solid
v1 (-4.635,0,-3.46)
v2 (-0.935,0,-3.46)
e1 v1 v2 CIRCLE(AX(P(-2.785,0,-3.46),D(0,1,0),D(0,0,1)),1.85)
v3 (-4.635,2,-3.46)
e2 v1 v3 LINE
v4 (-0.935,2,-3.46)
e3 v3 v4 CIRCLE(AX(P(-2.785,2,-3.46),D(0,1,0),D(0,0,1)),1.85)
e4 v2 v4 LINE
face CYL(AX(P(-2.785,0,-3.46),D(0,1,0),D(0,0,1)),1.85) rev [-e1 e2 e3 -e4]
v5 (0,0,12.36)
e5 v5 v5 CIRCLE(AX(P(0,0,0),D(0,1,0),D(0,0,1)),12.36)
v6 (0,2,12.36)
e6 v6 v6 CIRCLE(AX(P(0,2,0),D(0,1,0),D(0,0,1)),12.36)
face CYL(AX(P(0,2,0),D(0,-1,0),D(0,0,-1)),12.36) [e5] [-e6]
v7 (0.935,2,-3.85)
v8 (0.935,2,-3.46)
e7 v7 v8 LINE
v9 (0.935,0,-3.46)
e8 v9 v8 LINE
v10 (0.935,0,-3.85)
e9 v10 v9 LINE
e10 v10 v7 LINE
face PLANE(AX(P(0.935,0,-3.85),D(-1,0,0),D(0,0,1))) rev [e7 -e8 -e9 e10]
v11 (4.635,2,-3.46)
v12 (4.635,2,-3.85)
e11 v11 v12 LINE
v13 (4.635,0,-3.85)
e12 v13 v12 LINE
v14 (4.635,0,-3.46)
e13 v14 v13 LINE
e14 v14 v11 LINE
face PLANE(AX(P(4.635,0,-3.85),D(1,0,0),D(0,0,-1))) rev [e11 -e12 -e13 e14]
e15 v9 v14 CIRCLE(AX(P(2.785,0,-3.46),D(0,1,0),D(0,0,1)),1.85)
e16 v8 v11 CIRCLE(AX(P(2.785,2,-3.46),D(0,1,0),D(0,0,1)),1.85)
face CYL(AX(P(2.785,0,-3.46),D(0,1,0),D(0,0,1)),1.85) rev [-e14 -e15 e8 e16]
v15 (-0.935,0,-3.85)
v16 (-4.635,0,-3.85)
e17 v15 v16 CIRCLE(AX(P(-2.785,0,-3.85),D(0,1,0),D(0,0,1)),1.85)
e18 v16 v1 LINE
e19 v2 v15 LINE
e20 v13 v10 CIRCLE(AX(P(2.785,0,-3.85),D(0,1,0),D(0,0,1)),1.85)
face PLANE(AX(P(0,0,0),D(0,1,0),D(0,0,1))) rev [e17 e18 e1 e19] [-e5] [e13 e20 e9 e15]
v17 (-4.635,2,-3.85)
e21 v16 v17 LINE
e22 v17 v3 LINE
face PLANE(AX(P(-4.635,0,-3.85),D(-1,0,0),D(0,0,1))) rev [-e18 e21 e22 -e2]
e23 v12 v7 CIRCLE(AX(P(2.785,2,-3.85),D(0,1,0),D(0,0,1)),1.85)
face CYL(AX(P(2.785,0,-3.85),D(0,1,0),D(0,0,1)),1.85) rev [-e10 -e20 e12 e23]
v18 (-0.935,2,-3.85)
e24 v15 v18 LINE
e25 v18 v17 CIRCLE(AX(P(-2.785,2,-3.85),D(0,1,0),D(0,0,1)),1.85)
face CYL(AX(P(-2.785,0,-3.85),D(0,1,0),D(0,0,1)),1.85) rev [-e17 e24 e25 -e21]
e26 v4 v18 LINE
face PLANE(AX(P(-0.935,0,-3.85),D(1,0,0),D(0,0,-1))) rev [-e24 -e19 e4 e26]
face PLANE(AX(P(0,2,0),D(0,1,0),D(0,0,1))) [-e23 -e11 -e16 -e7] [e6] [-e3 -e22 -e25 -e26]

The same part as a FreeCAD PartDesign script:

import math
import FreeCAD as App
import Part
import Sketcher

V = App.Vector
Q = App.Units.Quantity

doc = App.newDocument("Part")
body = doc.addObject("PartDesign::Body", "Body")

# Sketch on XZ plane
sketch1 = body.newObject("Sketcher::SketchObject", "Sketch")
sketch1.AttachmentSupport = (doc.getObject("XZ_Plane"), [""])
sketch1.MapMode = "FlatFace"
sketch1.addGeometry(Part.Circle(V(0, 0, 0), V(0, 0, 1), 12), False)
sketch1.addConstraint([
    Sketcher.Constraint("Coincident", 0, 3, -1, 1),
    Sketcher.Constraint("Diameter", 0, Q("24.72 mm")),
])
pad1 = body.newObject("PartDesign::Pad", "Pad")
pad1.Profile = sketch1
pad1.Length = 2
pad1.Reversed = True

# Sketch on XZ plane
sketch2 = body.newObject("Sketcher::SketchObject", "Sketch001")
sketch2.AttachmentSupport = (doc.getObject("XZ_Plane"), [""])
sketch2.MapMode = "FlatFace"
sketch2.AttachmentOffset = App.Placement(V(0, 0, -2), App.Rotation())
sketch2.addGeometry([
    Part.LineSegment(V(4.63, -3.46, 0), V(4.63, -3.85, 0)),  # 0
    Part.ArcOfCircle(Part.Circle(V(2.79, -3.85, 0), V(0, 0, 1), 1.85), math.radians(180), math.radians(360)),  # 1
    Part.LineSegment(V(0.94, -3.85, 0), V(0.94, -3.46, 0)),  # 2
    Part.ArcOfCircle(Part.Circle(V(2.79, -3.46, 0), V(0, 0, 1), 1.85), math.radians(0), math.radians(180)),  # 3
    Part.LineSegment(V(-0.94, -3.46, 0), V(-0.94, -3.85, 0)),  # 4
    Part.ArcOfCircle(Part.Circle(V(-2.79, -3.85, 0), V(0, 0, 1), 1.85), math.radians(180), math.radians(360)),  # 5
    Part.LineSegment(V(-4.63, -3.85, 0), V(-4.63, -3.46, 0)),  # 6
    Part.ArcOfCircle(Part.Circle(V(-2.79, -3.46, 0), V(0, 0, 1), 1.85), math.radians(0), math.radians(180)),  # 7
], False)
sketch2.addConstraint([
    Sketcher.Constraint("Tangent", 0, 2, 1, 2),
    Sketcher.Constraint("Tangent", 1, 1, 2, 1),
    Sketcher.Constraint("Tangent", 2, 2, 3, 2),
    Sketcher.Constraint("Tangent", 3, 1, 0, 1),
    Sketcher.Constraint("Tangent", 4, 2, 5, 2),
    Sketcher.Constraint("Tangent", 5, 1, 6, 1),
    Sketcher.Constraint("Tangent", 6, 2, 7, 2),
    Sketcher.Constraint("Tangent", 7, 1, 4, 1),
    Sketcher.Constraint("Vertical", 0),
    Sketcher.Constraint("Vertical", 2),
    Sketcher.Constraint("Vertical", 4),
    Sketcher.Constraint("Vertical", 6),
    Sketcher.Constraint("Equal", 3, 5),
    Sketcher.Constraint("Symmetric", 1, 3, 5, 3, -2),
    Sketcher.Constraint("Horizontal", 3, 3, 7, 3),
    Sketcher.Constraint("Radius", 1, Q("1.85 mm")),
    Sketcher.Constraint("DistanceY", 0, 2, 0, 1, Q("0.39 mm")),
    Sketcher.Constraint("DistanceY", 1, 3, -1, 1, Q("3.85 mm")),
    Sketcher.Constraint("DistanceX", 5, 3, 1, 3, Q("5.57 mm")),
])
pocket1 = body.newObject("PartDesign::Pocket", "Pocket")
pocket1.Profile = sketch2
pocket1.Type = "ThroughAll"
pocket1.Reversed = True

doc.recompute()
